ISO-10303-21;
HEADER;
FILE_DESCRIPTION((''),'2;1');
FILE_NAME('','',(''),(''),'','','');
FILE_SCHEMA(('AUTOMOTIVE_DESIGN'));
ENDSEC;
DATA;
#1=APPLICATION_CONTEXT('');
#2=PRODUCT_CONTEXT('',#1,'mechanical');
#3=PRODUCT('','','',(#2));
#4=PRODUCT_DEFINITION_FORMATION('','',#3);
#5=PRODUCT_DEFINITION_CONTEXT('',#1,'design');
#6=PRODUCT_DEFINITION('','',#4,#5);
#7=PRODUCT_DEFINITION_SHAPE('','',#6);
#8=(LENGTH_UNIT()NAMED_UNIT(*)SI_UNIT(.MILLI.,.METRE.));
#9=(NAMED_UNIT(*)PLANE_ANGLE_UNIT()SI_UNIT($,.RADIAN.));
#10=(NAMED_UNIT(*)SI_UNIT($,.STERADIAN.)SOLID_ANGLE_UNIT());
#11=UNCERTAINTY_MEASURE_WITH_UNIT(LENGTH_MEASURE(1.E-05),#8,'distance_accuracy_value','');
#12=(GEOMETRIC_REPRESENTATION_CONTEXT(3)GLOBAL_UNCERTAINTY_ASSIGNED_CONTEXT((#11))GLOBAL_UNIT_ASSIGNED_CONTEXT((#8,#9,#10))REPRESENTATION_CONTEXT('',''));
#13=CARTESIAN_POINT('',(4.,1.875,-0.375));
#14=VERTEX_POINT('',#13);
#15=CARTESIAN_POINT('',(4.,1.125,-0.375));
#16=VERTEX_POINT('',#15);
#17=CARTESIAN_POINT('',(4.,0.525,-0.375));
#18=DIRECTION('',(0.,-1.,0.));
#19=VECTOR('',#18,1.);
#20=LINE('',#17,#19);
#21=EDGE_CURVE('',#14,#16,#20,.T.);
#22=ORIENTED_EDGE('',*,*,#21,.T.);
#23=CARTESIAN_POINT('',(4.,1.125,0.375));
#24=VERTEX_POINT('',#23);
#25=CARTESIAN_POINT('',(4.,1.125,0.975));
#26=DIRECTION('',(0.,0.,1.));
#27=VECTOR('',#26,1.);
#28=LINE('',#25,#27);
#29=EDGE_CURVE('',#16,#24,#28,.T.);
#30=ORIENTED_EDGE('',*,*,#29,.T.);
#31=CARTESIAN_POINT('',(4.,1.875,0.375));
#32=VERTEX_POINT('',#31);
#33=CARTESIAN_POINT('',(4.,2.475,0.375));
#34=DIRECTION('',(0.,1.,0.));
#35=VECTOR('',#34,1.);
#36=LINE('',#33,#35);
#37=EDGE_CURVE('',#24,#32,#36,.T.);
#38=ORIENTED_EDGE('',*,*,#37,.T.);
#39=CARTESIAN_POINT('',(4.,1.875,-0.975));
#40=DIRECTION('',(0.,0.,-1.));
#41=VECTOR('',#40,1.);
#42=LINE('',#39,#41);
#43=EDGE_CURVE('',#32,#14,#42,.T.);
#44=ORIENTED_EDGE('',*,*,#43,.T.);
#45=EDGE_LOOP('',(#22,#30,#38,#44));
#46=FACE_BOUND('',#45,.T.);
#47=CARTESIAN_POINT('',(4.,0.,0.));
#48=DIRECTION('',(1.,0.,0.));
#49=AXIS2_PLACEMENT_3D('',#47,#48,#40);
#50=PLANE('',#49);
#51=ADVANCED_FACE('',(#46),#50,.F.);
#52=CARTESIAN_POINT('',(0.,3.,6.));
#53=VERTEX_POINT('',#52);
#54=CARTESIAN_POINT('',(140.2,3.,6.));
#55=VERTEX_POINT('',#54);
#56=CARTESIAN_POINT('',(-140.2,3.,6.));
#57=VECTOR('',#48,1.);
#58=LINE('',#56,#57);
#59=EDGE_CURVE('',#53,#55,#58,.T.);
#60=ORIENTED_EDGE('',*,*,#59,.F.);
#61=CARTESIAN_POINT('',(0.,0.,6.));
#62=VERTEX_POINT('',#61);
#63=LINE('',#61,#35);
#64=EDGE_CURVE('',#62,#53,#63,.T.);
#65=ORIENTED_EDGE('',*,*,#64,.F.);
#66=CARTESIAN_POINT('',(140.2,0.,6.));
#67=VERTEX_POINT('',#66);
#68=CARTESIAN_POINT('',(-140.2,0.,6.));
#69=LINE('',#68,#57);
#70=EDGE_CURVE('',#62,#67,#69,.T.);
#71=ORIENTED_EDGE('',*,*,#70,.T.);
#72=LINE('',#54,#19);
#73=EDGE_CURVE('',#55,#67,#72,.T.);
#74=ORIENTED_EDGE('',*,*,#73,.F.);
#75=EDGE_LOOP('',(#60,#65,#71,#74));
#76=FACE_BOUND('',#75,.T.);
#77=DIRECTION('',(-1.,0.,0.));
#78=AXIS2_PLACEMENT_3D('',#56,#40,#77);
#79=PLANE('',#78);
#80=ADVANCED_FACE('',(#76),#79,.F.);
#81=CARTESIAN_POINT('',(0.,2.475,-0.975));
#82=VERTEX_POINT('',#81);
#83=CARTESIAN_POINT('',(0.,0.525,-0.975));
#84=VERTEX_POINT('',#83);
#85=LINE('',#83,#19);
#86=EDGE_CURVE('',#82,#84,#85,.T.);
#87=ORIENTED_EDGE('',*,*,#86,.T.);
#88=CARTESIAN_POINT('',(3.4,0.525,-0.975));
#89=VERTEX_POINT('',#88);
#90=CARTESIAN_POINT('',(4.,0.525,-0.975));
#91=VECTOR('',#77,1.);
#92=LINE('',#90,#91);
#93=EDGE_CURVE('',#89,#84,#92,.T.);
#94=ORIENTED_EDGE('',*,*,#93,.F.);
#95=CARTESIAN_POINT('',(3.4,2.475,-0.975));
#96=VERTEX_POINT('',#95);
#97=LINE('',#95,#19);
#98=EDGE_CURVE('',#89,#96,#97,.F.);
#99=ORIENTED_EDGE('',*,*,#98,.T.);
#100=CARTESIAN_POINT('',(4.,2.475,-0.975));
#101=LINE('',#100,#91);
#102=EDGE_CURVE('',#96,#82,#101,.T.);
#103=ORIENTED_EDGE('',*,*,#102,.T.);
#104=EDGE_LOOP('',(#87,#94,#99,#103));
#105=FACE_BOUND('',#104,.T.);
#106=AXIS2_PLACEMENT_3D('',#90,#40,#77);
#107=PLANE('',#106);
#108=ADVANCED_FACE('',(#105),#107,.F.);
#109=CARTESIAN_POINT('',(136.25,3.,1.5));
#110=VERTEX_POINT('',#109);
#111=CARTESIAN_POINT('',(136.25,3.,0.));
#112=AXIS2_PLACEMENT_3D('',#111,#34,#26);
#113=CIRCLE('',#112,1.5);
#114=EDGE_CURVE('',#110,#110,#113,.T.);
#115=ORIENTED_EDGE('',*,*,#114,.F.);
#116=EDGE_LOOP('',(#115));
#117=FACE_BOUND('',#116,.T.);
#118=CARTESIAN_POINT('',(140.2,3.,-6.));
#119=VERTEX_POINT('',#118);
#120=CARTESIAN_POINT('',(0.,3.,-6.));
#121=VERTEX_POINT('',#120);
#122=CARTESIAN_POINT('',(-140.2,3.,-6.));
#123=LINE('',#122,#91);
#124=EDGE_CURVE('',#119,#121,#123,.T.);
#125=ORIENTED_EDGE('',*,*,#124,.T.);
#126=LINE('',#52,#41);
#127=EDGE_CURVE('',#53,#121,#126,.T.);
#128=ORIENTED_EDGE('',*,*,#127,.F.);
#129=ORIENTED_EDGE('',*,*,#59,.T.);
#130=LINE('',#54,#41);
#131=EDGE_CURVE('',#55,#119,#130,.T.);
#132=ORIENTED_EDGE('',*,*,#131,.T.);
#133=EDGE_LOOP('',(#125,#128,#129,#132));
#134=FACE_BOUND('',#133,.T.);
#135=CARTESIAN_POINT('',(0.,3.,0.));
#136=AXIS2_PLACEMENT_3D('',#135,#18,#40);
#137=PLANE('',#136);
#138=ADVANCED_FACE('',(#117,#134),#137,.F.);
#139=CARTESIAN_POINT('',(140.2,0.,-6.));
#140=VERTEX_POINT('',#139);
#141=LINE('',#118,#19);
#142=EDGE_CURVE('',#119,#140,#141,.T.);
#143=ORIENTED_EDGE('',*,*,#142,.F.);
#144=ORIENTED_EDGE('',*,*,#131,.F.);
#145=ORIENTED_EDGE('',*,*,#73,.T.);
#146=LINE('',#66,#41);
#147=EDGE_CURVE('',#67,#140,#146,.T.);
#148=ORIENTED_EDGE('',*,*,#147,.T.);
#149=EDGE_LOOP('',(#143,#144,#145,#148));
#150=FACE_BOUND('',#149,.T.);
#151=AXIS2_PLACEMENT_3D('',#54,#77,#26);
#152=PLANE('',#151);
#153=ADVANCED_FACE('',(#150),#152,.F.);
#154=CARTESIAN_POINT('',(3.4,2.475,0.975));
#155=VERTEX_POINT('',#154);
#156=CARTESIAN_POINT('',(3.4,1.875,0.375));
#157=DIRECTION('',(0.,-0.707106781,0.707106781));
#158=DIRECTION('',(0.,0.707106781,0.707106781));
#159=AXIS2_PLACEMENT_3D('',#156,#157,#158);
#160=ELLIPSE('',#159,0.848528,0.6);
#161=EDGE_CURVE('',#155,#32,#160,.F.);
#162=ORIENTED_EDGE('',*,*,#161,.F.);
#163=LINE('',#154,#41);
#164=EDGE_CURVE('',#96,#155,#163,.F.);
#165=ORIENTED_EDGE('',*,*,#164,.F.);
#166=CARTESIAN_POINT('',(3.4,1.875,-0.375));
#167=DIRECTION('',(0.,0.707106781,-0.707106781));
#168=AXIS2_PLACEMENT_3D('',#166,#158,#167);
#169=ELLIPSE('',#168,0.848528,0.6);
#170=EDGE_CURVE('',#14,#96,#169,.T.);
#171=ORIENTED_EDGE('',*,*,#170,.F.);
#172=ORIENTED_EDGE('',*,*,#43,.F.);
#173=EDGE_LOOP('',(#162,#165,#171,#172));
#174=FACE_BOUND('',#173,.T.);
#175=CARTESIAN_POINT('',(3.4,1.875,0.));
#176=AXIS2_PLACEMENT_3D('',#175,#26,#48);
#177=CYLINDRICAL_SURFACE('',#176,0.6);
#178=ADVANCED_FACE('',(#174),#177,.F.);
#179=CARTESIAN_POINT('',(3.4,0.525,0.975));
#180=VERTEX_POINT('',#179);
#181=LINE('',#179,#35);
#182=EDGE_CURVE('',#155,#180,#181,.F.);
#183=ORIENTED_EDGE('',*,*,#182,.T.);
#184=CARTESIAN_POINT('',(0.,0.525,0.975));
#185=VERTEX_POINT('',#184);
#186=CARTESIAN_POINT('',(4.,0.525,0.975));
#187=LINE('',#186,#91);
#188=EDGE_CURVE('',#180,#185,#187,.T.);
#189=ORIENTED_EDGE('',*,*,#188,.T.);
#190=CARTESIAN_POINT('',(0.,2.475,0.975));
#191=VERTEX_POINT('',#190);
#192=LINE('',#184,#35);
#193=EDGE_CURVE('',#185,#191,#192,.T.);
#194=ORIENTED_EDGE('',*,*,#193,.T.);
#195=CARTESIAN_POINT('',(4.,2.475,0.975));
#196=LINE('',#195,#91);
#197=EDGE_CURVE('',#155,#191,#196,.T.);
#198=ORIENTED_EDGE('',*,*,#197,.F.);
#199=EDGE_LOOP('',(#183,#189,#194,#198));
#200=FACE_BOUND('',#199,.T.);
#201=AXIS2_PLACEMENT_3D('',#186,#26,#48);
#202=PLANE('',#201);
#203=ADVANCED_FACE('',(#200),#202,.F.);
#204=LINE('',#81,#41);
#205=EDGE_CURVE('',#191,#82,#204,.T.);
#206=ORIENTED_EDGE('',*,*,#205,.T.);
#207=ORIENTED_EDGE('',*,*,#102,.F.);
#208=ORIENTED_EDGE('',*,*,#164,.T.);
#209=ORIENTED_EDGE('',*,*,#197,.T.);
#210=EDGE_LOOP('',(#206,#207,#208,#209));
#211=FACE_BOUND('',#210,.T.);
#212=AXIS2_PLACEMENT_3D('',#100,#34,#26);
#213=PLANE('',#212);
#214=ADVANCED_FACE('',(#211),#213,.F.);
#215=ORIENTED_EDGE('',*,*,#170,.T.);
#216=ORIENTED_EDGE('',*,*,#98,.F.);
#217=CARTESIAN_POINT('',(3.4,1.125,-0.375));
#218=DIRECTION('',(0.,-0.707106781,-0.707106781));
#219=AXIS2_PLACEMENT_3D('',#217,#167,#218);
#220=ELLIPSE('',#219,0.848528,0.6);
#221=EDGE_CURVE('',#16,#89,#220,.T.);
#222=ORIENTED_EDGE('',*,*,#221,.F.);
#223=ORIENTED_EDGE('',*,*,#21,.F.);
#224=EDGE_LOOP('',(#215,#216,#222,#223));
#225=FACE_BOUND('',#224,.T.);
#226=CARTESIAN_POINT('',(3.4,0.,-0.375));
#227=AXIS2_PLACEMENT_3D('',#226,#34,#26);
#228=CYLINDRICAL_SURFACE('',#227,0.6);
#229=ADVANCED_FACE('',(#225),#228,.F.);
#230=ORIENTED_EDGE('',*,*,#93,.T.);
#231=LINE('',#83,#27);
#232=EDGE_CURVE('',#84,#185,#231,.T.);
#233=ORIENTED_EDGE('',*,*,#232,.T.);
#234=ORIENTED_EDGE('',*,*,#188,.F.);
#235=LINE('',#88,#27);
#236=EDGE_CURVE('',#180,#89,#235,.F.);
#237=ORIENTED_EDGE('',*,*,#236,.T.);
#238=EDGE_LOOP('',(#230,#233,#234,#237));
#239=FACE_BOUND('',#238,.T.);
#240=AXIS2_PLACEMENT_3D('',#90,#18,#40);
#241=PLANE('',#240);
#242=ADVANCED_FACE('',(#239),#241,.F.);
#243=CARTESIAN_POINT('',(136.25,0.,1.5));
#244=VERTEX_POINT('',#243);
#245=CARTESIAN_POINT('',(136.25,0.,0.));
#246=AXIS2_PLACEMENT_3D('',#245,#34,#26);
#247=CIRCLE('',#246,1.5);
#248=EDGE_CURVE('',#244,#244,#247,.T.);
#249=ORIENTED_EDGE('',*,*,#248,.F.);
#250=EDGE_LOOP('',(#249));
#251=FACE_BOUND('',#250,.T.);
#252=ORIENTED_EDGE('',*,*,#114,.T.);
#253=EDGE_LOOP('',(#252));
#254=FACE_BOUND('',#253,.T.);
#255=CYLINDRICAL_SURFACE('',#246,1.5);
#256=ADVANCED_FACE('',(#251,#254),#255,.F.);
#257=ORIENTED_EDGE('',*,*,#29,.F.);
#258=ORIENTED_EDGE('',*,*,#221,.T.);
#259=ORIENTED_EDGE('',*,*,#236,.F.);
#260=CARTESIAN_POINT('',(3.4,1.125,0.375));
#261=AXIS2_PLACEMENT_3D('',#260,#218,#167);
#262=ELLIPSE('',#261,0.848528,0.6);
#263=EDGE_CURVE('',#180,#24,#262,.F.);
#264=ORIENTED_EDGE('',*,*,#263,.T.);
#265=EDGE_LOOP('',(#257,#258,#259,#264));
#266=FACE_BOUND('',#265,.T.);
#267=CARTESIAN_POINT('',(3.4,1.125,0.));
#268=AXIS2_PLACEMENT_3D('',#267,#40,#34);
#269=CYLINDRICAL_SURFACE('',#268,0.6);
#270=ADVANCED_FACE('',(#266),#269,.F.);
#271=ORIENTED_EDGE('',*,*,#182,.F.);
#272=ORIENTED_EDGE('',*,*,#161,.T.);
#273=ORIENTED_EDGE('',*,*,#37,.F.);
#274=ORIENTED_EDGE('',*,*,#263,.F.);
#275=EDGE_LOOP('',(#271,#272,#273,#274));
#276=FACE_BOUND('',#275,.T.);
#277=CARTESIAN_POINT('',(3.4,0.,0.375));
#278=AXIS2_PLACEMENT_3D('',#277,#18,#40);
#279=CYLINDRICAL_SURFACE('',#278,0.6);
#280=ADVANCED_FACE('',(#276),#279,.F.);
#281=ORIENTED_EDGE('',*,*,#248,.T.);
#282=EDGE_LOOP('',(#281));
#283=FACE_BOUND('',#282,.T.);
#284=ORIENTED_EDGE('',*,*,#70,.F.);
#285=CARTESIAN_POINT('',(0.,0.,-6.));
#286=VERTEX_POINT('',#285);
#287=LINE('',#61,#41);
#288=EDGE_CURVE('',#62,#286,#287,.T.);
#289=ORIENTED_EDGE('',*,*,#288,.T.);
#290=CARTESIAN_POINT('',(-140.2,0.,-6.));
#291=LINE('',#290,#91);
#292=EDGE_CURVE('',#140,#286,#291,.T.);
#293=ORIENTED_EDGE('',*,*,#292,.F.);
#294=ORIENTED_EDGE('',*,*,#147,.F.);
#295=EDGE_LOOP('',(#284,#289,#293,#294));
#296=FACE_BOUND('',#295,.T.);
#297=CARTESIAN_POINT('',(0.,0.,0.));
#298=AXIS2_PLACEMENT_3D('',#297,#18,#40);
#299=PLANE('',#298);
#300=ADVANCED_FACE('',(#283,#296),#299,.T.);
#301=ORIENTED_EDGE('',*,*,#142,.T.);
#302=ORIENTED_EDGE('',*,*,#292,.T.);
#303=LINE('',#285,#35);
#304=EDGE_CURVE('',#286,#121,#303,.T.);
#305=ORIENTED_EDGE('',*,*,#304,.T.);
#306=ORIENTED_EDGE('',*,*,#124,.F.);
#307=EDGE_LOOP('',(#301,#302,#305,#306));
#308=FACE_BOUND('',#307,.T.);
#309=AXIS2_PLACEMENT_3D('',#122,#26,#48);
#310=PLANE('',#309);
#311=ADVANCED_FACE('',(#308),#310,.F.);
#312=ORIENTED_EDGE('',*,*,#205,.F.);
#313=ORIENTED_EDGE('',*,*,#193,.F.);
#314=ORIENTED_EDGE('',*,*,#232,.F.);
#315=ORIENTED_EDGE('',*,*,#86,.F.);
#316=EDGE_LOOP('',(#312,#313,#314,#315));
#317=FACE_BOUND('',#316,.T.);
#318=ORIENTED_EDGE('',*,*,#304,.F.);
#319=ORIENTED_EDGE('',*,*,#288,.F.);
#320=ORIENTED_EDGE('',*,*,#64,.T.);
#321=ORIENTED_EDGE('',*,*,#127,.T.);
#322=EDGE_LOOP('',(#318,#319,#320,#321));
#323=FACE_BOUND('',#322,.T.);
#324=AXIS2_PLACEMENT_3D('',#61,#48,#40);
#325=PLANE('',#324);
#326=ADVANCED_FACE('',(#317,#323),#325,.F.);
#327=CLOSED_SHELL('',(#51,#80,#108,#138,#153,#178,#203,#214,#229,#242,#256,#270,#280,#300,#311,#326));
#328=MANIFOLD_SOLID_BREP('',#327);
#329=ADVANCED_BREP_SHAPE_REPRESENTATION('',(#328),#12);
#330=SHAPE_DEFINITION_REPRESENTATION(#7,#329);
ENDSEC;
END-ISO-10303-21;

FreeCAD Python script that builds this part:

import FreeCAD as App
import Part
import Sketcher
Q = App.Units.Quantity


def edges_at(feature, points):
    """Names of the edges that pass closest to the given points."""
    edges = feature.Shape.Edges
    near = lambda p: min(range(len(edges)), key=lambda i: edges[i].distToShape(Part.Vertex(*p))[0])
    return sorted({f"Edge{near(p) + 1}" for p in points})

doc = App.newDocument("Part")
params = doc.addObject("Spreadsheet::Sheet", "Params")
for row, (alias, value) in enumerate([
    ("sketch1_height", "12 mm"),
    ("sketch1_width", "280.4 mm"),
    ("pad1_length", "3 mm"),
    ("sketch2_diameter", "3 mm"),
    ("sketch3_height", "12 mm"),
    ("sketch3_width", "140.2 mm"),
    ("sketch4_width", "1.95 mm"),
    ("pocket3_length", "4 mm"),
    ("fillet_radius", "0.6 mm"),
], start=1):
    params.set(f"A{row}", alias)
    params.set(f"B{row}", "=" + value)
    params.setAlias(f"B{row}", alias)

body = doc.addObject("PartDesign::Body", "Body")

# Sketch on XZ plane
sketch1 = doc.addObject("Sketcher::SketchObject", "Sketch")
body.addObject(sketch1)
sketch1.AttachmentSupport = (doc.XZ_Plane, [""])
sketch1.MapMode = "FlatFace"
sketch1.addGeometry(Part.LineSegment(App.Vector(-140.2, -6, 0), App.Vector(-140.2, 6, 0)), False)
sketch1.addGeometry(Part.LineSegment(App.Vector(-140.2, 6, 0), App.Vector(140.2, 6, 0)), False)
sketch1.addGeometry(Part.LineSegment(App.Vector(140.2, 6, 0), App.Vector(140.2, -6, 0)), False)
sketch1.addGeometry(Part.LineSegment(App.Vector(140.2, -6, 0), App.Vector(-140.2, -6, 0)), False)
sketch1.addConstraint(Sketcher.Constraint("Coincident", 0, 2, 1, 1))
sketch1.addConstraint(Sketcher.Constraint("Coincident", 1, 2, 2, 1))
sketch1.addConstraint(Sketcher.Constraint("Coincident", 2, 2, 3, 1))
sketch1.addConstraint(Sketcher.Constraint("Coincident", 3, 2, 0, 1))
sketch1.addConstraint(Sketcher.Constraint("Vertical", 0))
sketch1.addConstraint(Sketcher.Constraint("Horizontal", 1))
sketch1.addConstraint(Sketcher.Constraint("Vertical", 2))
sketch1.addConstraint(Sketcher.Constraint("Horizontal", 3))
sketch1.addConstraint(Sketcher.Constraint("Symmetric", 0, 2, 2, 2, -1, 1))
sketch1.addConstraint(Sketcher.Constraint("DistanceY", 0, 1, 0, 2, Q("12 mm")))
sketch1.addConstraint(Sketcher.Constraint("DistanceX", 1, 1, 1, 2, Q("280.4 mm")))
sketch1.setExpression("Constraints[9]", "Params.sketch1_height")
sketch1.setExpression("Constraints[10]", "Params.sketch1_width")
pad1 = doc.addObject("PartDesign::Pad", "Pad")
body.addObject(pad1)
pad1.Profile = sketch1
pad1.setExpression("Length", "Params.pad1_length")
pad1.Reversed = True

# Sketch on XZ plane
sketch2 = doc.addObject("Sketcher::SketchObject", "Sketch001")
body.addObject(sketch2)
sketch2.AttachmentSupport = (doc.XZ_Plane, [""])
sketch2.MapMode = "FlatFace"
sketch2.AttachmentOffset = App.Placement(App.Vector(0, 0, -3), App.Rotation())
sketch2.addGeometry(Part.Circle(App.Vector(-136.25, 0, 0), App.Vector(0, 0, 1), 1.5), False)
sketch2.addGeometry(Part.Circle(App.Vector(136.25, 0, 0), App.Vector(0, 0, 1), 1.5), False)
sketch2.addConstraint(Sketcher.Constraint("Equal", 0, 1))
sketch2.addConstraint(Sketcher.Constraint("Symmetric", 0, 3, 1, 3, -1, 1))
sketch2.addConstraint(Sketcher.Constraint("PointOnObject", 0, 3, -1))
sketch2.addConstraint(Sketcher.Constraint("Diameter", 0, Q("3 mm")))
sketch2.addConstraint(Sketcher.Constraint("DistanceX", 0, 3, 1, 3, Q("272.5 mm")))
sketch2.setExpression("Constraints[3]", "Params.sketch2_diameter")
pocket1 = doc.addObject("PartDesign::Pocket", "Pocket")
body.addObject(pocket1)
pocket1.Profile = sketch2
pocket1.Type = "ThroughAll"
pocket1.Reversed = True

# Sketch on XZ plane
sketch3 = doc.addObject("Sketcher::SketchObject", "Sketch002")
body.addObject(sketch3)
sketch3.AttachmentSupport = (doc.XZ_Plane, [""])
sketch3.MapMode = "FlatFace"
sketch3.AttachmentOffset = App.Placement(App.Vector(0, 0, -3), App.Rotation())
sketch3.addGeometry(Part.LineSegment(App.Vector(-140.2, -6, 0), App.Vector(-140.2, 6, 0)), False)
sketch3.addGeometry(Part.LineSegment(App.Vector(-140.2, 6, 0), App.Vector(0, 6, 0)), False)
sketch3.addGeometry(Part.LineSegment(App.Vector(0, 6, 0), App.Vector(0, -6, 0)), False)
sketch3.addGeometry(Part.LineSegment(App.Vector(0, -6, 0), App.Vector(-140.2, -6, 0)), False)
sketch3.addConstraint(Sketcher.Constraint("Coincident", 0, 2, 1, 1))
sketch3.addConstraint(Sketcher.Constraint("Coincident", 1, 2, 2, 1))
sketch3.addConstraint(Sketcher.Constraint("Coincident", 2, 2, 3, 1))
sketch3.addConstraint(Sketcher.Constraint("Coincident", 3, 2, 0, 1))
sketch3.addConstraint(Sketcher.Constraint("Vertical", 0))
sketch3.addConstraint(Sketcher.Constraint("Horizontal", 1))
sketch3.addConstraint(Sketcher.Constraint("Vertical", 2))
sketch3.addConstraint(Sketcher.Constraint("Horizontal", 3))
sketch3.addConstraint(Sketcher.Constraint("Symmetric", 1, 2, 2, 2, -1, 1))
sketch3.addConstraint(Sketcher.Constraint("DistanceY", 0, 1, 0, 2, Q("12 mm")))
sketch3.addConstraint(Sketcher.Constraint("DistanceX", 1, 1, 1, 2, Q("140.2 mm")))
sketch3.setExpression("Constraints[9]", "Params.sketch3_height")
sketch3.setExpression("Constraints[10]", "Params.sketch3_width")
pocket2 = doc.addObject("PartDesign::Pocket", "Pocket001")
body.addObject(pocket2)
pocket2.Profile = sketch3
pocket2.Type = "ThroughAll"
pocket2.Reversed = True

# Sketch on YZ plane
sketch4 = doc.addObject("Sketcher::SketchObject", "Sketch003")
body.addObject(sketch4)
sketch4.AttachmentSupport = (doc.YZ_Plane, [""])
sketch4.MapMode = "FlatFace"
sketch4.addGeometry(Part.LineSegment(App.Vector(2.475, -0.975, 0), App.Vector(0.525, -0.975, 0)), False)
sketch4.addGeometry(Part.LineSegment(App.Vector(0.525, -0.975, 0), App.Vector(0.525, 0.975, 0)), False)
sketch4.addGeometry(Part.LineSegment(App.Vector(0.525, 0.975, 0), App.Vector(2.475, 0.975, 0)), False)
sketch4.addGeometry(Part.LineSegment(App.Vector(2.475, 0.975, 0), App.Vector(2.475, -0.975, 0)), False)
sketch4.addConstraint(Sketcher.Constraint("Coincident", 0, 2, 1, 1))
sketch4.addConstraint(Sketcher.Constraint("Coincident", 1, 2, 2, 1))
sketch4.addConstraint(Sketcher.Constraint("Coincident", 2, 2, 3, 1))
sketch4.addConstraint(Sketcher.Constraint("Coincident", 3, 2, 0, 1))
sketch4.addConstraint(Sketcher.Constraint("Horizontal", 0))
sketch4.addConstraint(Sketcher.Constraint("Vertical", 1))
sketch4.addConstraint(Sketcher.Constraint("Horizontal", 2))
sketch4.addConstraint(Sketcher.Constraint("Vertical", 3))
sketch4.addConstraint(Sketcher.Constraint("Equal", 2, 1))
sketch4.addConstraint(Sketcher.Constraint("DistanceX", 0, 2, 0, 1, Q("1.95 mm")))
sketch4.addConstraint(Sketcher.Constraint("DistanceX", -1, 1, 0, 2, Q("0.525 mm")))
sketch4.addConstraint(Sketcher.Constraint("DistanceY", 0, 2, -1, 1, Q("0.975 mm")))
sketch4.setExpression("Constraints[9]", "Params.sketch4_width")
pocket3 = doc.addObject("PartDesign::Pocket", "Pocket002")
body.addObject(pocket3)
pocket3.Profile = sketch4
pocket3.setExpression("Length", "Params.pocket3_length")
pocket3.Reversed = True
doc.recompute()

fillet = doc.addObject("PartDesign::Fillet", "Fillet")
body.addObject(fillet)
fillet.Base = (pocket3, edges_at(pocket3, [
    (4, 1.5, 0.975),
    (4, 0.525, 0),
    (4, 1.5, -0.975),
    (4, 2.475, 0),
]))
fillet.setExpression("Radius", "Params.fillet_radius")

doc.recompute()
